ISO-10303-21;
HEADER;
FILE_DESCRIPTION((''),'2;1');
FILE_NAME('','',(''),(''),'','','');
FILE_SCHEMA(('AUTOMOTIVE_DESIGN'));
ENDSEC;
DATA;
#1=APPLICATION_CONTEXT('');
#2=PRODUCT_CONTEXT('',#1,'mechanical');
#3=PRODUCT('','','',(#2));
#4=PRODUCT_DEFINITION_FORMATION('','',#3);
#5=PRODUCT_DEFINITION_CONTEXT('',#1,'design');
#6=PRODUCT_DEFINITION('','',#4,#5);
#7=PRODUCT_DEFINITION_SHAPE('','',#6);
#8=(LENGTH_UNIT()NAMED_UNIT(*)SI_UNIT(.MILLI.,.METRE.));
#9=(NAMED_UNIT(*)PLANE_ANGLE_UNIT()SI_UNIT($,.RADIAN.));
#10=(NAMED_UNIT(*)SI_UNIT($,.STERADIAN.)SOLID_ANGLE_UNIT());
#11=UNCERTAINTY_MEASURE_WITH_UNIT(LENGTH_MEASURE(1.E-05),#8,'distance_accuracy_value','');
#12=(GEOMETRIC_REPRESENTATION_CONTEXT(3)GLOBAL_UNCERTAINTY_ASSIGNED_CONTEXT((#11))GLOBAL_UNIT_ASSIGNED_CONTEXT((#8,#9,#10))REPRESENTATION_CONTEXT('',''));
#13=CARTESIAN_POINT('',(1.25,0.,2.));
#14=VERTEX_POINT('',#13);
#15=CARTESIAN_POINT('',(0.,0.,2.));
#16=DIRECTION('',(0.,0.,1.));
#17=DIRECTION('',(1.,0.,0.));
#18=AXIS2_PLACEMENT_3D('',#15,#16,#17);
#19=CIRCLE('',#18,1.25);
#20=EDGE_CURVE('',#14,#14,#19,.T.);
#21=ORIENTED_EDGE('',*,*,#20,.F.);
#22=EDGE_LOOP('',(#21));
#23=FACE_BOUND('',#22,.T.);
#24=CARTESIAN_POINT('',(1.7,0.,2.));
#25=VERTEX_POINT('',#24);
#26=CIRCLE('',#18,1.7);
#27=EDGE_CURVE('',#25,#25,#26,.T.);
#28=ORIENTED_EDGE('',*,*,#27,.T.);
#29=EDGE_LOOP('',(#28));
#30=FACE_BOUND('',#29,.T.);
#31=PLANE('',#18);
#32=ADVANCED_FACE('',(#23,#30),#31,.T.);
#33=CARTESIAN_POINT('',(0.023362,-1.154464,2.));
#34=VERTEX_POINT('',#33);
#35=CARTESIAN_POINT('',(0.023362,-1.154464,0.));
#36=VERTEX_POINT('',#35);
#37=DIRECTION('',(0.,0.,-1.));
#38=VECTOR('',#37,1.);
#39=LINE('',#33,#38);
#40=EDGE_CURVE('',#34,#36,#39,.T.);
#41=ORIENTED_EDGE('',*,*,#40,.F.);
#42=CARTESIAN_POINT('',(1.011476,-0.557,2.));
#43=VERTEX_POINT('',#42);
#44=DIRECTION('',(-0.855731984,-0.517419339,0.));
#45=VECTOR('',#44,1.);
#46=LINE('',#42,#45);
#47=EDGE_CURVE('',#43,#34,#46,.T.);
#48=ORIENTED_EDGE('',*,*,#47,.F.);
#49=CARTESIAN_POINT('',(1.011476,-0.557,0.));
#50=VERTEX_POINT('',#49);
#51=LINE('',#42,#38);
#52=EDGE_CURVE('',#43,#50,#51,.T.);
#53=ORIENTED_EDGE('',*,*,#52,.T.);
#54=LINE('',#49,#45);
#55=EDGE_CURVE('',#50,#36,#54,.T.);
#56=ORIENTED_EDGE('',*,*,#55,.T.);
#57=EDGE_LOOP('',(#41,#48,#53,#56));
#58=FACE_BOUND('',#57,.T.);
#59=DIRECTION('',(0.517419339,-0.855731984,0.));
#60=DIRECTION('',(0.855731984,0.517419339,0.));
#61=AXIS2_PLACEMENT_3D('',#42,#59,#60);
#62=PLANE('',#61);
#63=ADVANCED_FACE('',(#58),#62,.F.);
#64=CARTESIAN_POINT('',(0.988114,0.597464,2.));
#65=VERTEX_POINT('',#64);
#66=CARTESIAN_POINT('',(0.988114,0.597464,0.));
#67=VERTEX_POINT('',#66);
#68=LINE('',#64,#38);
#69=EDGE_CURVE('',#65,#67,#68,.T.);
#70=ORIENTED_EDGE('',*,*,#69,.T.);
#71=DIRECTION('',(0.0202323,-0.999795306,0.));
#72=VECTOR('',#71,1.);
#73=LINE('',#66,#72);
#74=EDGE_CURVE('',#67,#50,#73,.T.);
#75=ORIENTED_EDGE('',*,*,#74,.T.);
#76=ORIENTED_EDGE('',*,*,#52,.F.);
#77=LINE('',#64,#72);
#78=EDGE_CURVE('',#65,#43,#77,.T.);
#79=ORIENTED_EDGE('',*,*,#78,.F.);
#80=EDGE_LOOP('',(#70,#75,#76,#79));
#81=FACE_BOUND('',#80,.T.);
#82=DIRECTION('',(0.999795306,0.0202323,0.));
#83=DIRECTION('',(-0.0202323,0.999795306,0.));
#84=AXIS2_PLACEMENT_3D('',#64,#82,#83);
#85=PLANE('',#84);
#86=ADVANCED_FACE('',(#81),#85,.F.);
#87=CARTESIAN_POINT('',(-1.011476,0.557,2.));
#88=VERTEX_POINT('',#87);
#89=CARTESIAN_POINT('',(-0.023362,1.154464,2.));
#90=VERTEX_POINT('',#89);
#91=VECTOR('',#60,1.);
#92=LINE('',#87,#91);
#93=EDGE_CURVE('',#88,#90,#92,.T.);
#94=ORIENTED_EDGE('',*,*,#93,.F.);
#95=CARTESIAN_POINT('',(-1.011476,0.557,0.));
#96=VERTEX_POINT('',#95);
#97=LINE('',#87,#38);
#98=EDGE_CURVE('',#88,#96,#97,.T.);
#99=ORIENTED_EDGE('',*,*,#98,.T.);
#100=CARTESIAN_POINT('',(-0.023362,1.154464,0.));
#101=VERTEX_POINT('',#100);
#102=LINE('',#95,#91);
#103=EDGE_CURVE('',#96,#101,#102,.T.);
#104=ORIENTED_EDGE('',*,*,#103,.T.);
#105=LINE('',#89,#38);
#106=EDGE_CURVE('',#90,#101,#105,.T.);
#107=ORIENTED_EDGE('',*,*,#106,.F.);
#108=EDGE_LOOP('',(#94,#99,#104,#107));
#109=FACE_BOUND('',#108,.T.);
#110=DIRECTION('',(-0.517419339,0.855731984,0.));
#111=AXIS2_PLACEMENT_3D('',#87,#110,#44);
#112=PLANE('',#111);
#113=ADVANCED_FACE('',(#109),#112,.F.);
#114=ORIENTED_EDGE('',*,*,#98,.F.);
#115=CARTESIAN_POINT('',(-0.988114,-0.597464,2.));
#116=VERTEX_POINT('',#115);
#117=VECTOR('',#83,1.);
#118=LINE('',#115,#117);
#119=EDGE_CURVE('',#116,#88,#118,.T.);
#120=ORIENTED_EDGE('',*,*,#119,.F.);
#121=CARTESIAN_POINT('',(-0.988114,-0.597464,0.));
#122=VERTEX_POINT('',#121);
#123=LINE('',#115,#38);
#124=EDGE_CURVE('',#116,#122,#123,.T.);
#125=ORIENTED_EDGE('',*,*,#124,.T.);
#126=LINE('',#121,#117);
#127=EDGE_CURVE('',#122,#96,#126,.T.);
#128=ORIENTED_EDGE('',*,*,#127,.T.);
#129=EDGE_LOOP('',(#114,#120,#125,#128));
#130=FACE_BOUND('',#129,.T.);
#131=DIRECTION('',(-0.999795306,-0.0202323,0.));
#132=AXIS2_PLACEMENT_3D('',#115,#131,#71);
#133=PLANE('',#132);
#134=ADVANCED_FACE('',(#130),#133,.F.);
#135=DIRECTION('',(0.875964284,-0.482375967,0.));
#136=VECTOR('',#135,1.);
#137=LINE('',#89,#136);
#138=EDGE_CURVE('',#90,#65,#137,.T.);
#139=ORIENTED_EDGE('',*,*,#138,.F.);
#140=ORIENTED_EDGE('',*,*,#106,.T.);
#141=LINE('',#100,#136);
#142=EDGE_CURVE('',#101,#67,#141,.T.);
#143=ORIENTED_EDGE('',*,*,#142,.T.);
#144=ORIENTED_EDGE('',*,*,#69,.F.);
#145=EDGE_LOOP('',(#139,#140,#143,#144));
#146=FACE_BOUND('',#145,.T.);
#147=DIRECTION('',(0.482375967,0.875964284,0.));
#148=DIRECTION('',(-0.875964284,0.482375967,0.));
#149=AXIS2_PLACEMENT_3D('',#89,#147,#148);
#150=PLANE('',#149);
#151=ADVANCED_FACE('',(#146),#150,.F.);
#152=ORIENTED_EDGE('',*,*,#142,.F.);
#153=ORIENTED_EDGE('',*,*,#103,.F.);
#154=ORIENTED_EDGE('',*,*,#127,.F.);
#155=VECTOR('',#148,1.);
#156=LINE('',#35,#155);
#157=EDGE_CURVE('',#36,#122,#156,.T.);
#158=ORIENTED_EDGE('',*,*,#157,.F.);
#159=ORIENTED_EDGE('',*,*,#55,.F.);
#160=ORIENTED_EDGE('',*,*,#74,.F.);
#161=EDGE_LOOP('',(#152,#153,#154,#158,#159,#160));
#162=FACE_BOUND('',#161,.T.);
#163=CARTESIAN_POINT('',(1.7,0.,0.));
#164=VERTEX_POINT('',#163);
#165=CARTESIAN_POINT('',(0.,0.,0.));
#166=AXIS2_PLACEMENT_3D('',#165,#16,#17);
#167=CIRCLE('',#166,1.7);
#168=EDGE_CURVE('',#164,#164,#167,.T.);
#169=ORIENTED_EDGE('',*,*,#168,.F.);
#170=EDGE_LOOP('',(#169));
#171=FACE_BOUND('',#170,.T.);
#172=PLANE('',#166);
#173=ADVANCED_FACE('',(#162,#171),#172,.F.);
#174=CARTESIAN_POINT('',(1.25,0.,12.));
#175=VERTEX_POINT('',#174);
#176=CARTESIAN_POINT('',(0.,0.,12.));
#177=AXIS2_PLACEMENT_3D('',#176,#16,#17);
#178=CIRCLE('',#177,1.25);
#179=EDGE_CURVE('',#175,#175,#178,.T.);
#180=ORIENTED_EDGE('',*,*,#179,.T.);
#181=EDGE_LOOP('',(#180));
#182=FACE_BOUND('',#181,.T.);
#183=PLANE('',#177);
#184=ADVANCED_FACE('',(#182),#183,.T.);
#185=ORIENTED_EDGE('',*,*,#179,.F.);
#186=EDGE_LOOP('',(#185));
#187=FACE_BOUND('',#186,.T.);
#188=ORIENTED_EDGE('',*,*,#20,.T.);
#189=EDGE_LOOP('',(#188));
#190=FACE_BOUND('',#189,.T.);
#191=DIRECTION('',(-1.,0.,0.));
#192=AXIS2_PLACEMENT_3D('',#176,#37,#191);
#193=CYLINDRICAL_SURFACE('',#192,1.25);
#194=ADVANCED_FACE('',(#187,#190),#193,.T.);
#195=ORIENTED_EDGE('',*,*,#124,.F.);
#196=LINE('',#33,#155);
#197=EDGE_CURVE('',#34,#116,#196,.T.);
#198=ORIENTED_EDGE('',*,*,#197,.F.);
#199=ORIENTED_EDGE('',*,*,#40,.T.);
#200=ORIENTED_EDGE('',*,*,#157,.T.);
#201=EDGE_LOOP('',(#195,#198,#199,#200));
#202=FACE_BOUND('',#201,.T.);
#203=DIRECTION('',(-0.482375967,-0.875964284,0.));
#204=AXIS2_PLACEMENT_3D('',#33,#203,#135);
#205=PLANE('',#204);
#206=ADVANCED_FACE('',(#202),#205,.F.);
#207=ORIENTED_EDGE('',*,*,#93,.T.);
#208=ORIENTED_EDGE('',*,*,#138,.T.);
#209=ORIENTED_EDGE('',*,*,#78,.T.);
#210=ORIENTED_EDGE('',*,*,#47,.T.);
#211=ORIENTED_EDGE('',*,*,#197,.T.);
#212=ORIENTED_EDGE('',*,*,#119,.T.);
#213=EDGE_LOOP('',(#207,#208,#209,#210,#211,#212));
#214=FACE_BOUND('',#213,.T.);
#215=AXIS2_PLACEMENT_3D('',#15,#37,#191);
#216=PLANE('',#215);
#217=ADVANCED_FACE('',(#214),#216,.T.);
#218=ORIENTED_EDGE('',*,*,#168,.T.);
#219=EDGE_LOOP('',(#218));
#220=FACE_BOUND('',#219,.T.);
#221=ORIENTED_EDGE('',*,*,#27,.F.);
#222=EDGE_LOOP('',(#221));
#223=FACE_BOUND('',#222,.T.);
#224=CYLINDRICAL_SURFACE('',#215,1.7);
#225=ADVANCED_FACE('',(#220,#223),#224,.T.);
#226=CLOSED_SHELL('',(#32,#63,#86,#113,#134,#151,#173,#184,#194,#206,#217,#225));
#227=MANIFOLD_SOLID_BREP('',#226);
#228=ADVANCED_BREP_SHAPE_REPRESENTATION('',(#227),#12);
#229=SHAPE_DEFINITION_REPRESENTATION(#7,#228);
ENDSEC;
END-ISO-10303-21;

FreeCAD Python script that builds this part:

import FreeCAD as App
import Part
import Sketcher

V = App.Vector


def add_polygon(sketch, points):
    """Adds a closed chain of lines whose ends are joined by coincident constraints."""
    first, n = sketch.GeometryCount, len(points)
    for a, b in zip(points, points[1:] + points[:1]):
        sketch.addGeometry(Part.LineSegment(App.Vector(*a, 0), App.Vector(*b, 0)), False)
    for i in range(n):
        sketch.addConstraint(Sketcher.Constraint("Coincident", first + i, 2, first + (i + 1) % n, 1))

doc = App.newDocument("Part")
body = doc.addObject("PartDesign::Body", "Body")

sketch1 = body.newObject("Sketcher::SketchObject", "Sketch")
sketch1.AttachmentSupport = (doc.getObject("XY_Plane"), [""])
sketch1.MapMode = "FlatFace"
sketch1.addGeometry(Part.Circle(V(0, 0, 0), V(0, 0, 1), 1.25), False)
sketch1.addConstraint([
    Sketcher.Constraint("Coincident", 0, 3, -1, 1),
    Sketcher.Constraint("Diameter", 0, 2.5),
])
pad1 = body.newObject("PartDesign::Pad", "Pad")
pad1.Profile = sketch1
pad1.Length = 12

sketch2 = body.newObject("Sketcher::SketchObject", "Sketch001")
sketch2.AttachmentSupport = (doc.getObject("XY_Plane"), [""])
sketch2.MapMode = "FlatFace"
sketch2.addGeometry([
    Part.Circle(V(0, 0, 0), V(0, 0, 1), 1.7),
    Part.Circle(V(0, 0, 0), V(0, 0, 1), 1.25),
], False)
sketch2.addConstraint([
    Sketcher.Constraint("Coincident", 0, 3, -1, 1),
    Sketcher.Constraint("Coincident", 1, 3, -1, 1),
    Sketcher.Constraint("Diameter", 0, 3.4),
    Sketcher.Constraint("Diameter", 1, 2.5),
])
pad2 = body.newObject("PartDesign::Pad", "Pad001")
pad2.Profile = sketch2
pad2.Length = 2

sketch3 = body.newObject("Sketcher::SketchObject", "Sketch002")
sketch3.AttachmentSupport = (doc.getObject("XY_Plane"), [""])
sketch3.MapMode = "FlatFace"
add_polygon(sketch3, [(-0.988114, -0.597464), (-1.011476, 0.557), (-0.023362, 1.154464), (0.988114, 0.597464), (1.011476, -0.557), (0.023362, -1.154464)])
sketch3.addConstraint([
    Sketcher.Constraint("Symmetric", 0, 2, 3, 2, -1, 1),
    Sketcher.Constraint("Symmetric", 1, 2, 4, 2, -1, 1),
    Sketcher.Constraint("Symmetric", 2, 2, 5, 2, -1, 1),
    Sketcher.Constraint("Equal", 0, 1),
    Sketcher.Constraint("Equal", 1, 2),
    Sketcher.Constraint("DistanceY", -1, 1, 0, 2, 0.557),
    Sketcher.Constraint("DistanceY", 2, 2, 1, 2, 0.557),
    Sketcher.Constraint("Distance", 0, 1.154701),
    Sketcher.Constraint("DistanceX", 0, 2, 2, 2, 1.999591),
])
pocket1 = body.newObject("PartDesign::Pocket", "Pocket")
pocket1.Profile = sketch3
pocket1.Length = 2
pocket1.Reversed = True

doc.recompute()
